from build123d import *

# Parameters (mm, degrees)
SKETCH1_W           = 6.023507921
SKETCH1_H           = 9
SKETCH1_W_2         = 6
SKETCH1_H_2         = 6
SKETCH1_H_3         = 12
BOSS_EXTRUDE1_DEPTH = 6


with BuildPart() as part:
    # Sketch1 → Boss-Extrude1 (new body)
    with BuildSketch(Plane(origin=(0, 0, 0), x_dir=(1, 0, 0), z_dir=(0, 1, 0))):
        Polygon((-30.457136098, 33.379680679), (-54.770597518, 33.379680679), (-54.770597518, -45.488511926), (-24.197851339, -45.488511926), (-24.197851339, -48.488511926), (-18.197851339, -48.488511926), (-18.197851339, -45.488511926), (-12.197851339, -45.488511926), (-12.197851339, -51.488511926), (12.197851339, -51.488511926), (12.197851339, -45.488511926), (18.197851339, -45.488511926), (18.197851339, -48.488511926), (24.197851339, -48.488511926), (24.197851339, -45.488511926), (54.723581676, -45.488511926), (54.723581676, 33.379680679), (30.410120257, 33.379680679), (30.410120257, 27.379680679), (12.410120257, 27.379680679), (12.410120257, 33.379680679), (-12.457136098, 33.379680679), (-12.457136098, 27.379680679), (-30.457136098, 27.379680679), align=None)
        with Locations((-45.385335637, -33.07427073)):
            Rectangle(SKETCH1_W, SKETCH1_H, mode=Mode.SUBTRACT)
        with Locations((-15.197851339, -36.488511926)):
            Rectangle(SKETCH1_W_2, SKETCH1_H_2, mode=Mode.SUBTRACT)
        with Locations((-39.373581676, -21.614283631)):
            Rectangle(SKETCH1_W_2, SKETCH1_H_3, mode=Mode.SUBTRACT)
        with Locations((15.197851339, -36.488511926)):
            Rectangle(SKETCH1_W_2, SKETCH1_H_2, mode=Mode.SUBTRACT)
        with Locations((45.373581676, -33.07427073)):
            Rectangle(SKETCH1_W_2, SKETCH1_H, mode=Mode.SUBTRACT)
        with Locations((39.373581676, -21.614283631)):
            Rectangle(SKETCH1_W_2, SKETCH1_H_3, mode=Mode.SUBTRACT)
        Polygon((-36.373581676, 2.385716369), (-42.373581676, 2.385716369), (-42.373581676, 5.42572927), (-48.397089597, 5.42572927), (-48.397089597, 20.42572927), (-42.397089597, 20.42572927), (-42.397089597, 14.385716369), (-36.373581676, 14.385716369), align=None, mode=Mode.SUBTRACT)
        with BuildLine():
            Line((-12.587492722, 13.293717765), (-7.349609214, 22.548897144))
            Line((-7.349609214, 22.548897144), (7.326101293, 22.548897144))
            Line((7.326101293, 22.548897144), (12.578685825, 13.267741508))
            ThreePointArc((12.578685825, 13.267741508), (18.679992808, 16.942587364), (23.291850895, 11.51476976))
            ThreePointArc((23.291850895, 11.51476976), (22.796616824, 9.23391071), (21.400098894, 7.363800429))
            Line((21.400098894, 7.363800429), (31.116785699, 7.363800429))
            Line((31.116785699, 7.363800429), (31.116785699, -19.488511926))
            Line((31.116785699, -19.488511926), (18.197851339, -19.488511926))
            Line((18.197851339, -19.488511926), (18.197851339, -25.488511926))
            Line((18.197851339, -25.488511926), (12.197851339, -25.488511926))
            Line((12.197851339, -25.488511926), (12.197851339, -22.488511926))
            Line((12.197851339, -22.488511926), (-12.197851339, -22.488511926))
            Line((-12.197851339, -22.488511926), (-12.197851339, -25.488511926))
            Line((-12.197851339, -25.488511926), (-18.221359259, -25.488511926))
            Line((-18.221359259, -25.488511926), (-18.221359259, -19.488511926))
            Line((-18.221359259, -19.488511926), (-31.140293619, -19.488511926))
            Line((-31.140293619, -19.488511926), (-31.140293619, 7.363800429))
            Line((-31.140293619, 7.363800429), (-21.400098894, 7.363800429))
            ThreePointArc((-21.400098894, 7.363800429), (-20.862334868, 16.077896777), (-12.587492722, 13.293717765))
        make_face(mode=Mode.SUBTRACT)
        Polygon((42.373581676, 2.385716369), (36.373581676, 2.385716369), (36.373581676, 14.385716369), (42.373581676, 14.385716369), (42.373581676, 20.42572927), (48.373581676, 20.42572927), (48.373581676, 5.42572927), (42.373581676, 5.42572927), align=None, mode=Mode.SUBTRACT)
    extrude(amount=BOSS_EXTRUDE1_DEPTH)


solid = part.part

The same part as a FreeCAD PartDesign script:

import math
import FreeCAD as App
import Part
import Sketcher
from FreeCAD import Vector
Q = App.Units.Quantity

doc = App.newDocument("Part")
body = doc.addObject("PartDesign::Body", "Body")

sketch1 = body.newObject("Sketcher::SketchObject", "Sketch")
sketch1.AttachmentSupport = (doc.getObject("XZ_Plane"), [""])
sketch1.MapMode = "FlatFace"
sketch1.addGeometry(Part.LineSegment(Vector(-30.5, -33.4, 0), Vector(-54.8, -33.4, 0)), False)
sketch1.addGeometry(Part.LineSegment(Vector(-54.8, -33.4, 0), Vector(-54.8, 45.5, 0)), False)
sketch1.addGeometry(Part.LineSegment(Vector(-54.8, 45.5, 0), Vector(-24.2, 45.5, 0)), False)
sketch1.addGeometry(Part.LineSegment(Vector(-24.2, 45.5, 0), Vector(-24.2, 48.5, 0)), False)
sketch1.addGeometry(Part.LineSegment(Vector(-24.2, 48.5, 0), Vector(-18.2, 48.5, 0)), False)
sketch1.addGeometry(Part.LineSegment(Vector(-18.2, 48.5, 0), Vector(-18.2, 45.5, 0)), False)
sketch1.addGeometry(Part.LineSegment(Vector(-18.2, 45.5, 0), Vector(-12.2, 45.5, 0)), False)
sketch1.addGeometry(Part.LineSegment(Vector(-12.2, 45.5, 0), Vector(-12.2, 51.5, 0)), False)
sketch1.addGeometry(Part.LineSegment(Vector(-12.2, 51.5, 0), Vector(12.2, 51.5, 0)), False)
sketch1.addGeometry(Part.LineSegment(Vector(12.2, 51.5, 0), Vector(12.2, 45.5, 0)), False)
sketch1.addGeometry(Part.LineSegment(Vector(12.2, 45.5, 0), Vector(18.2, 45.5, 0)), False)
sketch1.addGeometry(Part.LineSegment(Vector(18.2, 45.5, 0), Vector(18.2, 48.5, 0)), False)
sketch1.addGeometry(Part.LineSegment(Vector(18.2, 48.5, 0), Vector(24.2, 48.5, 0)), False)
sketch1.addGeometry(Part.LineSegment(Vector(24.2, 48.5, 0), Vector(24.2, 45.5, 0)), False)
sketch1.addGeometry(Part.LineSegment(Vector(24.2, 45.5, 0), Vector(54.7, 45.5, 0)), False)
sketch1.addGeometry(Part.LineSegment(Vector(54.7, 45.5, 0), Vector(54.7, -33.4, 0)), False)
sketch1.addGeometry(Part.LineSegment(Vector(54.7, -33.4, 0), Vector(30.4, -33.4, 0)), False)
sketch1.addGeometry(Part.LineSegment(Vector(30.4, -33.4, 0), Vector(30.4, -27.4, 0)), False)
sketch1.addGeometry(Part.LineSegment(Vector(30.4, -27.4, 0), Vector(12.4, -27.4, 0)), False)
sketch1.addGeometry(Part.LineSegment(Vector(12.4, -27.4, 0), Vector(12.4, -33.4, 0)), False)
sketch1.addGeometry(Part.LineSegment(Vector(12.4, -33.4, 0), Vector(-12.5, -33.4, 0)), False)
sketch1.addGeometry(Part.LineSegment(Vector(-12.5, -33.4, 0), Vector(-12.5, -27.4, 0)), False)
sketch1.addGeometry(Part.LineSegment(Vector(-12.5, -27.4, 0), Vector(-30.5, -27.4, 0)), False)
sketch1.addGeometry(Part.LineSegment(Vector(-30.5, -27.4, 0), Vector(-30.5, -33.4, 0)), False)
sketch1.addGeometry(Part.LineSegment(Vector(-42.4, 37.6, 0), Vector(-48.4, 37.6, 0)), False)
sketch1.addGeometry(Part.LineSegment(Vector(-48.4, 37.6, 0), Vector(-48.4, 28.6, 0)), False)
sketch1.addGeometry(Part.LineSegment(Vector(-48.4, 28.6, 0), Vector(-42.4, 28.6, 0)), False)
sketch1.addGeometry(Part.LineSegment(Vector(-42.4, 28.6, 0), Vector(-42.4, 37.6, 0)), False)
sketch1.addGeometry(Part.LineSegment(Vector(-12.2, 39.5, 0), Vector(-18.2, 39.5, 0)), False)
sketch1.addGeometry(Part.LineSegment(Vector(-18.2, 39.5, 0), Vector(-18.2, 33.5, 0)), False)
sketch1.addGeometry(Part.LineSegment(Vector(-18.2, 33.5, 0), Vector(-12.2, 33.5, 0)), False)
sketch1.addGeometry(Part.LineSegment(Vector(-12.2, 33.5, 0), Vector(-12.2, 39.5, 0)), False)
sketch1.addGeometry(Part.LineSegment(Vector(-36.4, 27.6, 0), Vector(-42.4, 27.6, 0)), False)
sketch1.addGeometry(Part.LineSegment(Vector(-42.4, 27.6, 0), Vector(-42.4, 15.6, 0)), False)
sketch1.addGeometry(Part.LineSegment(Vector(-42.4, 15.6, 0), Vector(-36.4, 15.6, 0)), False)
sketch1.addGeometry(Part.LineSegment(Vector(-36.4, 15.6, 0), Vector(-36.4, 27.6, 0)), False)
sketch1.addGeometry(Part.LineSegment(Vector(18.2, 39.5, 0), Vector(12.2, 39.5, 0)), False)
sketch1.addGeometry(Part.LineSegment(Vector(12.2, 39.5, 0), Vector(12.2, 33.5, 0)), False)
sketch1.addGeometry(Part.LineSegment(Vector(12.2, 33.5, 0), Vector(18.2, 33.5, 0)), False)
sketch1.addGeometry(Part.LineSegment(Vector(18.2, 33.5, 0), Vector(18.2, 39.5, 0)), False)
sketch1.addGeometry(Part.LineSegment(Vector(48.4, 37.6, 0), Vector(42.4, 37.6, 0)), False)
sketch1.addGeometry(Part.LineSegment(Vector(42.4, 37.6, 0), Vector(42.4, 28.6, 0)), False)
sketch1.addGeometry(Part.LineSegment(Vector(42.4, 28.6, 0), Vector(48.4, 28.6, 0)), False)
sketch1.addGeometry(Part.LineSegment(Vector(48.4, 28.6, 0), Vector(48.4, 37.6, 0)), False)
sketch1.addGeometry(Part.LineSegment(Vector(42.4, 27.6, 0), Vector(36.4, 27.6, 0)), False)
sketch1.addGeometry(Part.LineSegment(Vector(36.4, 27.6, 0), Vector(36.4, 15.6, 0)), False)
sketch1.addGeometry(Part.LineSegment(Vector(36.4, 15.6, 0), Vector(42.4, 15.6, 0)), False)
sketch1.addGeometry(Part.LineSegment(Vector(42.4, 15.6, 0), Vector(42.4, 27.6, 0)), False)
sketch1.addGeometry(Part.LineSegment(Vector(-36.4, -14.4, 0), Vector(-36.4, -2.4, 0)), False)
sketch1.addGeometry(Part.LineSegment(Vector(-36.4, -2.4, 0), Vector(-42.4, -2.4, 0)), False)
sketch1.addGeometry(Part.LineSegment(Vector(-42.4, -2.4, 0), Vector(-42.4, -5.4, 0)), False)
sketch1.addGeometry(Part.LineSegment(Vector(-42.4, -5.4, 0), Vector(-48.4, -5.4, 0)), False)
sketch1.addGeometry(Part.LineSegment(Vector(-48.4, -5.4, 0), Vector(-48.4, -20.4, 0)), False)
sketch1.addGeometry(Part.LineSegment(Vector(-48.4, -20.4, 0), Vector(-42.4, -20.4, 0)), False)
sketch1.addGeometry(Part.LineSegment(Vector(-42.4, -20.4, 0), Vector(-42.4, -14.4, 0)), False)
sketch1.addGeometry(Part.LineSegment(Vector(-42.4, -14.4, 0), Vector(-36.4, -14.4, 0)), False)
sketch1.addGeometry(Part.ArcOfCircle(Part.Circle(Vector(-17.8, -11.5, 0), Vector(0, 0, 1), 5.5), math.radians(131), math.radians(341)), False)
sketch1.addGeometry(Part.LineSegment(Vector(-12.6, -13.3, 0), Vector(-7.3, -22.5, 0)), False)
sketch1.addGeometry(Part.LineSegment(Vector(-7.3, -22.5, 0), Vector(7.3, -22.5, 0)), False)
sketch1.addGeometry(Part.LineSegment(Vector(7.3, -22.5, 0), Vector(12.6, -13.3, 0)), False)
sketch1.addGeometry(Part.ArcOfCircle(Part.Circle(Vector(17.8, -11.5, 0), Vector(0, 0, 1), 5.5), math.radians(-161), math.radians(0)), False)
sketch1.addGeometry(Part.ArcOfCircle(Part.Circle(Vector(17.8, -11.5, 0), Vector(0, 0, 1), 5.5), math.radians(0), math.radians(49)), False)
sketch1.addGeometry(Part.LineSegment(Vector(21.4, -7.4, 0), Vector(31.1, -7.4, 0)), False)
sketch1.addGeometry(Part.LineSegment(Vector(31.1, -7.4, 0), Vector(31.1, 19.5, 0)), False)
sketch1.addGeometry(Part.LineSegment(Vector(31.1, 19.5, 0), Vector(18.2, 19.5, 0)), False)
sketch1.addGeometry(Part.LineSegment(Vector(18.2, 19.5, 0), Vector(18.2, 25.5, 0)), False)
sketch1.addGeometry(Part.LineSegment(Vector(18.2, 25.5, 0), Vector(12.2, 25.5, 0)), False)
sketch1.addGeometry(Part.LineSegment(Vector(12.2, 25.5, 0), Vector(12.2, 22.5, 0)), False)
sketch1.addGeometry(Part.LineSegment(Vector(12.2, 22.5, 0), Vector(-12.2, 22.5, 0)), False)
sketch1.addGeometry(Part.LineSegment(Vector(-12.2, 22.5, 0), Vector(-12.2, 25.5, 0)), False)
sketch1.addGeometry(Part.LineSegment(Vector(-12.2, 25.5, 0), Vector(-18.2, 25.5, 0)), False)
sketch1.addGeometry(Part.LineSegment(Vector(-18.2, 25.5, 0), Vector(-18.2, 19.5, 0)), False)
sketch1.addGeometry(Part.LineSegment(Vector(-18.2, 19.5, 0), Vector(-31.1, 19.5, 0)), False)
sketch1.addGeometry(Part.LineSegment(Vector(-31.1, 19.5, 0), Vector(-31.1, -7.4, 0)), False)
sketch1.addGeometry(Part.LineSegment(Vector(-31.1, -7.4, 0), Vector(-21.4, -7.4, 0)), False)
sketch1.addGeometry(Part.LineSegment(Vector(42.4, -5.4, 0), Vector(42.4, -2.4, 0)), False)
sketch1.addGeometry(Part.LineSegment(Vector(42.4, -2.4, 0), Vector(36.4, -2.4, 0)), False)
sketch1.addGeometry(Part.LineSegment(Vector(36.4, -2.4, 0), Vector(36.4, -14.4, 0)), False)
sketch1.addGeometry(Part.LineSegment(Vector(36.4, -14.4, 0), Vector(42.4, -14.4, 0)), False)
sketch1.addGeometry(Part.LineSegment(Vector(42.4, -14.4, 0), Vector(42.4, -20.4, 0)), False)
sketch1.addGeometry(Part.LineSegment(Vector(42.4, -20.4, 0), Vector(48.4, -20.4, 0)), False)
sketch1.addGeometry(Part.LineSegment(Vector(48.4, -20.4, 0), Vector(48.4, -5.4, 0)), False)
sketch1.addGeometry(Part.LineSegment(Vector(48.4, -5.4, 0), Vector(42.4, -5.4, 0)), False)
sketch1.addConstraint(Sketcher.Constraint("Coincident", 0, 2, 1, 1))
sketch1.addConstraint(Sketcher.Constraint("Coincident", 1, 2, 2, 1))
sketch1.addConstraint(Sketcher.Constraint("Coincident", 2, 2, 3, 1))
sketch1.addConstraint(Sketcher.Constraint("Coincident", 3, 2, 4, 1))
sketch1.addConstraint(Sketcher.Constraint("Coincident", 4, 2, 5, 1))
sketch1.addConstraint(Sketcher.Constraint("Coincident", 5, 2, 6, 1))
sketch1.addConstraint(Sketcher.Constraint("Coincident", 6, 2, 7, 1))
sketch1.addConstraint(Sketcher.Constraint("Coincident", 7, 2, 8, 1))
sketch1.addConstraint(Sketcher.Constraint("Coincident", 8, 2, 9, 1))
sketch1.addConstraint(Sketcher.Constraint("Coincident", 9, 2, 10, 1))
sketch1.addConstraint(Sketcher.Constraint("Coincident", 10, 2, 11, 1))
sketch1.addConstraint(Sketcher.Constraint("Coincident", 11, 2, 12, 1))
sketch1.addConstraint(Sketcher.Constraint("Coincident", 12, 2, 13, 1))
sketch1.addConstraint(Sketcher.Constraint("Coincident", 13, 2, 14, 1))
sketch1.addConstraint(Sketcher.Constraint("Coincident", 14, 2, 15, 1))
sketch1.addConstraint(Sketcher.Constraint("Coincident", 15, 2, 16, 1))
sketch1.addConstraint(Sketcher.Constraint("Coincident", 16, 2, 17, 1))
sketch1.addConstraint(Sketcher.Constraint("Coincident", 17, 2, 18, 1))
sketch1.addConstraint(Sketcher.Constraint("Coincident", 18, 2, 19, 1))
sketch1.addConstraint(Sketcher.Constraint("Coincident", 19, 2, 20, 1))
sketch1.addConstraint(Sketcher.Constraint("Coincident", 20, 2, 21, 1))
sketch1.addConstraint(Sketcher.Constraint("Coincident", 21, 2, 22, 1))
sketch1.addConstraint(Sketcher.Constraint("Coincident", 22, 2, 23, 1))
sketch1.addConstraint(Sketcher.Constraint("Coincident", 23, 2, 0, 1))
sketch1.addConstraint(Sketcher.Constraint("Coincident", 24, 2, 25, 1))
sketch1.addConstraint(Sketcher.Constraint("Coincident", 25, 2, 26, 1))
sketch1.addConstraint(Sketcher.Constraint("Coincident", 26, 2, 27, 1))
sketch1.addConstraint(Sketcher.Constraint("Coincident", 27, 2, 24, 1))
sketch1.addConstraint(Sketcher.Constraint("Coincident", 28, 2, 29, 1))
sketch1.addConstraint(Sketcher.Constraint("Coincident", 29, 2, 30, 1))
sketch1.addConstraint(Sketcher.Constraint("Coincident", 30, 2, 31, 1))
sketch1.addConstraint(Sketcher.Constraint("Coincident", 31, 2, 28, 1))
sketch1.addConstraint(Sketcher.Constraint("Coincident", 32, 2, 33, 1))
sketch1.addConstraint(Sketcher.Constraint("Coincident", 33, 2, 34, 1))
sketch1.addConstraint(Sketcher.Constraint("Coincident", 34, 2, 35, 1))
sketch1.addConstraint(Sketcher.Constraint("Coincident", 35, 2, 32, 1))
sketch1.addConstraint(Sketcher.Constraint("Coincident", 36, 2, 37, 1))
sketch1.addConstraint(Sketcher.Constraint("Coincident", 37, 2, 38, 1))
sketch1.addConstraint(Sketcher.Constraint("Coincident", 38, 2, 39, 1))
sketch1.addConstraint(Sketcher.Constraint("Coincident", 39, 2, 36, 1))
sketch1.addConstraint(Sketcher.Constraint("Coincident", 40, 2, 41, 1))
sketch1.addConstraint(Sketcher.Constraint("Coincident", 41, 2, 42, 1))
sketch1.addConstraint(Sketcher.Constraint("Coincident", 42, 2, 43, 1))
sketch1.addConstraint(Sketcher.Constraint("Coincident", 43, 2, 40, 1))
sketch1.addConstraint(Sketcher.Constraint("Coincident", 44, 2, 45, 1))
sketch1.addConstraint(Sketcher.Constraint("Coincident", 45, 2, 46, 1))
sketch1.addConstraint(Sketcher.Constraint("Coincident", 46, 2, 47, 1))
sketch1.addConstraint(Sketcher.Constraint("Coincident", 47, 2, 44, 1))
sketch1.addConstraint(Sketcher.Constraint("Coincident", 48, 2, 49, 1))
sketch1.addConstraint(Sketcher.Constraint("Coincident", 49, 2, 50, 1))
sketch1.addConstraint(Sketcher.Constraint("Coincident", 50, 2, 51, 1))
sketch1.addConstraint(Sketcher.Constraint("Coincident", 51, 2, 52, 1))
sketch1.addConstraint(Sketcher.Constraint("Coincident", 52, 2, 53, 1))
sketch1.addConstraint(Sketcher.Constraint("Coincident", 53, 2, 54, 1))
sketch1.addConstraint(Sketcher.Constraint("Coincident", 54, 2, 55, 1))
sketch1.addConstraint(Sketcher.Constraint("Coincident", 55, 2, 48, 1))
sketch1.addConstraint(Sketcher.Constraint("Coincident", 56, 2, 57, 1))
sketch1.addConstraint(Sketcher.Constraint("Coincident", 57, 2, 58, 1))
sketch1.addConstraint(Sketcher.Constraint("Coincident", 58, 2, 59, 1))
sketch1.addConstraint(Sketcher.Constraint("Coincident", 59, 2, 60, 1))
sketch1.addConstraint(Sketcher.Constraint("Tangent", 60, 2, 61, 1))
sketch1.addConstraint(Sketcher.Constraint("Coincident", 61, 2, 62, 1))
sketch1.addConstraint(Sketcher.Constraint("Coincident", 62, 2, 63, 1))
sketch1.addConstraint(Sketcher.Constraint("Coincident", 63, 2, 64, 1))
sketch1.addConstraint(Sketcher.Constraint("Coincident", 64, 2, 65, 1))
sketch1.addConstraint(Sketcher.Constraint("Coincident", 65, 2, 66, 1))
sketch1.addConstraint(Sketcher.Constraint("Coincident", 66, 2, 67, 1))
sketch1.addConstraint(Sketcher.Constraint("Coincident", 67, 2, 68, 1))
sketch1.addConstraint(Sketcher.Constraint("Coincident", 68, 2, 69, 1))
sketch1.addConstraint(Sketcher.Constraint("Coincident", 69, 2, 70, 1))
sketch1.addConstraint(Sketcher.Constraint("Coincident", 70, 2, 71, 1))
sketch1.addConstraint(Sketcher.Constraint("Coincident", 71, 2, 72, 1))
sketch1.addConstraint(Sketcher.Constraint("Coincident", 72, 2, 73, 1))
sketch1.addConstraint(Sketcher.Constraint("Coincident", 73, 2, 74, 1))
sketch1.addConstraint(Sketcher.Constraint("Coincident", 74, 2, 56, 1))
sketch1.addConstraint(Sketcher.Constraint("Coincident", 75, 2, 76, 1))
sketch1.addConstraint(Sketcher.Constraint("Coincident", 76, 2, 77, 1))
sketch1.addConstraint(Sketcher.Constraint("Coincident", 77, 2, 78, 1))
sketch1.addConstraint(Sketcher.Constraint("Coincident", 78, 2, 79, 1))
sketch1.addConstraint(Sketcher.Constraint("Coincident", 79, 2, 80, 1))
sketch1.addConstraint(Sketcher.Constraint("Coincident", 80, 2, 81, 1))
sketch1.addConstraint(Sketcher.Constraint("Coincident", 81, 2, 82, 1))
sketch1.addConstraint(Sketcher.Constraint("Coincident", 82, 2, 75, 1))
sketch1.addConstraint(Sketcher.Constraint("Horizontal", 0))
sketch1.addConstraint(Sketcher.Constraint("Vertical", 1))
sketch1.addConstraint(Sketcher.Constraint("Horizontal", 2))
sketch1.addConstraint(Sketcher.Constraint("Vertical", 3))
sketch1.addConstraint(Sketcher.Constraint("Horizontal", 4))
sketch1.addConstraint(Sketcher.Constraint("Vertical", 5))
sketch1.addConstraint(Sketcher.Constraint("Horizontal", 6))
sketch1.addConstraint(Sketcher.Constraint("Vertical", 7))
sketch1.addConstraint(Sketcher.Constraint("Horizontal", 8))
sketch1.addConstraint(Sketcher.Constraint("Vertical", 9))
sketch1.addConstraint(Sketcher.Constraint("Horizontal", 10))
sketch1.addConstraint(Sketcher.Constraint("Vertical", 11))
sketch1.addConstraint(Sketcher.Constraint("Horizontal", 12))
sketch1.addConstraint(Sketcher.Constraint("Vertical", 13))
sketch1.addConstraint(Sketcher.Constraint("Horizontal", 14))
sketch1.addConstraint(Sketcher.Constraint("Vertical", 15))
sketch1.addConstraint(Sketcher.Constraint("Horizontal", 16))
sketch1.addConstraint(Sketcher.Constraint("Vertical", 17))
sketch1.addConstraint(Sketcher.Constraint("Horizontal", 18))
sketch1.addConstraint(Sketcher.Constraint("Vertical", 19))
sketch1.addConstraint(Sketcher.Constraint("Horizontal", 20))
sketch1.addConstraint(Sketcher.Constraint("Vertical", 21))
sketch1.addConstraint(Sketcher.Constraint("Horizontal", 22))
sketch1.addConstraint(Sketcher.Constraint("Vertical", 23))
sketch1.addConstraint(Sketcher.Constraint("Horizontal", 24))
sketch1.addConstraint(Sketcher.Constraint("Vertical", 25))
sketch1.addConstraint(Sketcher.Constraint("Horizontal", 26))
sketch1.addConstraint(Sketcher.Constraint("Vertical", 27))
sketch1.addConstraint(Sketcher.Constraint("Horizontal", 28))
sketch1.addConstraint(Sketcher.Constraint("Vertical", 29))
sketch1.addConstraint(Sketcher.Constraint("Horizontal", 30))
sketch1.addConstraint(Sketcher.Constraint("Vertical", 31))
sketch1.addConstraint(Sketcher.Constraint("Horizontal", 32))
sketch1.addConstraint(Sketcher.Constraint("Vertical", 33))
sketch1.addConstraint(Sketcher.Constraint("Horizontal", 34))
sketch1.addConstraint(Sketcher.Constraint("Vertical", 35))
sketch1.addConstraint(Sketcher.Constraint("Horizontal", 36))
sketch1.addConstraint(Sketcher.Constraint("Vertical", 37))
sketch1.addConstraint(Sketcher.Constraint("Horizontal", 38))
sketch1.addConstraint(Sketcher.Constraint("Vertical", 39))
sketch1.addConstraint(Sketcher.Constraint("Horizontal", 40))
sketch1.addConstraint(Sketcher.Constraint("Vertical", 41))
sketch1.addConstraint(Sketcher.Constraint("Horizontal", 42))
sketch1.addConstraint(Sketcher.Constraint("Vertical", 43))
sketch1.addConstraint(Sketcher.Constraint("Horizontal", 44))
sketch1.addConstraint(Sketcher.Constraint("Vertical", 45))
sketch1.addConstraint(Sketcher.Constraint("Horizontal", 46))
sketch1.addConstraint(Sketcher.Constraint("Vertical", 47))
sketch1.addConstraint(Sketcher.Constraint("Vertical", 48))
sketch1.addConstraint(Sketcher.Constraint("Horizontal", 49))
sketch1.addConstraint(Sketcher.Constraint("Vertical", 50))
sketch1.addConstraint(Sketcher.Constraint("Horizontal", 51))
sketch1.addConstraint(Sketcher.Constraint("Vertical", 52))
sketch1.addConstraint(Sketcher.Constraint("Horizontal", 53))
sketch1.addConstraint(Sketcher.Constraint("Vertical", 54))
sketch1.addConstraint(Sketcher.Constraint("Horizontal", 55))
sketch1.addConstraint(Sketcher.Constraint("Horizontal", 58))
sketch1.addConstraint(Sketcher.Constraint("Horizontal", 62))
sketch1.addConstraint(Sketcher.Constraint("Vertical", 63))
sketch1.addConstraint(Sketcher.Constraint("Horizontal", 64))
sketch1.addConstraint(Sketcher.Constraint("Vertical", 65))
sketch1.addConstraint(Sketcher.Constraint("Horizontal", 66))
sketch1.addConstraint(Sketcher.Constraint("Vertical", 67))
sketch1.addConstraint(Sketcher.Constraint("Horizontal", 68))
sketch1.addConstraint(Sketcher.Constraint("Vertical", 69))
sketch1.addConstraint(Sketcher.Constraint("Horizontal", 70))
sketch1.addConstraint(Sketcher.Constraint("Vertical", 71))
sketch1.addConstraint(Sketcher.Constraint("Horizontal", 72))
sketch1.addConstraint(Sketcher.Constraint("Vertical", 73))
sketch1.addConstraint(Sketcher.Constraint("Horizontal", 74))
sketch1.addConstraint(Sketcher.Constraint("Vertical", 75))
sketch1.addConstraint(Sketcher.Constraint("Horizontal", 76))
sketch1.addConstraint(Sketcher.Constraint("Vertical", 77))
sketch1.addConstraint(Sketcher.Constraint("Horizontal", 78))
sketch1.addConstraint(Sketcher.Constraint("Vertical", 79))
sketch1.addConstraint(Sketcher.Constraint("Horizontal", 80))
sketch1.addConstraint(Sketcher.Constraint("Vertical", 81))
sketch1.addConstraint(Sketcher.Constraint("Horizontal", 82))
sketch1.addConstraint(Sketcher.Constraint("Equal", 56, 60))
sketch1.addConstraint(Sketcher.Constraint("Equal", 60, 61))
sketch1.addConstraint(Sketcher.Constraint("Symmetric", 56, 3, 60, 3, -2))
sketch1.addConstraint(Sketcher.Constraint("Symmetric", 6, 2, 9, 2, -2))
sketch1.addConstraint(Sketcher.Constraint("Symmetric", 4, 2, 11, 2, -2))
sketch1.addConstraint(Sketcher.Constraint("Symmetric", 2, 2, 13, 2, -2))
sketch1.addConstraint(Sketcher.Constraint("Symmetric", 31, 2, 36, 2, -2))
sketch1.addConstraint(Sketcher.Constraint("Symmetric", 29, 2, 38, 2, -2))
sketch1.addConstraint(Sketcher.Constraint("Symmetric", 27, 2, 40, 2, -2))
sketch1.addConstraint(Sketcher.Constraint("Symmetric", 35, 2, 44, 2, -2))
sketch1.addConstraint(Sketcher.Constraint("Symmetric", 33, 2, 46, 2, -2))
sketch1.addConstraint(Sketcher.Constraint("Symmetric", 66, 2, 69, 2, -2))
sketch1.addConstraint(Sketcher.Constraint("Symmetric", 49, 2, 75, 2, -2))
sketch1.addConstraint(Sketcher.Constraint("Symmetric", 55, 2, 77, 2, -2))
sketch1.addConstraint(Sketcher.Constraint("Horizontal", 2, 2, 5, 2))
sketch1.addConstraint(Sketcher.Constraint("Horizontal", 0, 2, 15, 2))
sketch1.addConstraint(Sketcher.Constraint("Horizontal", 16, 2, 19, 2))
sketch1.addConstraint(Sketcher.Constraint("Horizontal", 18, 2, 21, 2))
sketch1.addConstraint(Sketcher.Constraint("Horizontal", 26, 2, 41, 2))
sketch1.addConstraint(Sketcher.Constraint("Horizontal", 61, 3, 60, 2))
sketch1.addConstraint(Sketcher.Constraint("Horizontal", 64, 2, 71, 2))
sketch1.addConstraint(Sketcher.Constraint("Horizontal", 62, 2, 73, 2))
sketch1.addConstraint(Sketcher.Constraint("Horizontal", 53, 2, 79, 2))
sketch1.addConstraint(Sketcher.Constraint("Horizontal", 51, 2, 81, 2))
sketch1.addConstraint(Sketcher.Constraint("Vertical", 5, 2, 28, 2))
sketch1.addConstraint(Sketcher.Constraint("Vertical", 7, 2, 30, 2))
sketch1.addConstraint(Sketcher.Constraint("Vertical", 27, 2, 32, 2))
sketch1.addConstraint(Sketcher.Constraint("Vertical", 35, 2, 48, 2))
sketch1.addConstraint(Sketcher.Constraint("Vertical", 33, 2, 49, 2))
sketch1.addConstraint(Sketcher.Constraint("Vertical", 25, 2, 51, 2))
sketch1.addConstraint(Sketcher.Constraint("Vertical", 39, 2, 64, 2))
sketch1.addConstraint(Sketcher.Constraint("Vertical", 37, 2, 66, 2))
sketch1.addConstraint(Sketcher.Constraint("Vertical", 75, 2, 78, 2))
sketch1.addConstraint(Sketcher.Constraint("Vertical", 43, 2, 80, 2))
sketch1.addConstraint(Sketcher.Constraint("Equal", 4, 6))
sketch1.addConstraint(Sketcher.Constraint("Equal", 0, 16))
sketch1.addConstraint(Sketcher.Constraint("Equal", 18, 22))
sketch1.addConstraint(Sketcher.Constraint("Equal", 30, 32))
sketch1.addConstraint(Sketcher.Constraint("Equal", 38, 40))
sketch1.addConstraint(Sketcher.Constraint("Equal", 49, 53))
sketch1.addConstraint(Sketcher.Constraint("Equal", 55, 70))
sketch1.addConstraint(Sketcher.Constraint("Equal", 64, 72))
sketch1.addConstraint(Sketcher.Constraint("Equal", 82, 7))
sketch1.addConstraint(Sketcher.Constraint("Equal", 9, 17))
sketch1.addConstraint(Sketcher.Constraint("Equal", 23, 29))
sketch1.addConstraint(Sketcher.Constraint("Equal", 47, 48))
sketch1.addConstraint(Sketcher.Constraint("Equal", 39, 65))
sketch1.addConstraint(Sketcher.Constraint("Equal", 13, 67))
sketch1.addConstraint(Sketcher.Constraint("Radius", 56, Q("5.5 mm")))
sketch1.addConstraint(Sketcher.Constraint("DistanceX", 4, 1, 4, 2, Q("6 mm")))
sketch1.addConstraint(Sketcher.Constraint("DistanceX", 18, 2, 18, 1, Q("18 mm")))
sketch1.addConstraint(Sketcher.Constraint("DistanceY", 3, 1, 3, 2, Q("3 mm")))
sketch1.addConstraint(Sketcher.Constraint("DistanceY", 25, 2, 25, 1, Q("9 mm")))
sketch1.addConstraint(Sketcher.Constraint("DistanceY", 33, 2, 33, 1, Q("12 mm")))
sketch1.addConstraint(Sketcher.Constraint("DistanceY", 52, 2, 52, 1, Q("15 mm")))
sketch1.addConstraint(Sketcher.Constraint("DistanceX", 0, 2, 0, 1, Q("24.313461 mm")))
sketch1.addConstraint(Sketcher.Constraint("DistanceX", 14, 1, 14, 2, Q("30.52573 mm")))
sketch1.addConstraint(Sketcher.Constraint("DistanceX", 58, 1, 58, 2, Q("14.675711 mm")))
sketch1.addConstraint(Sketcher.Constraint("DistanceX", -1, 1, 58, 2, Q("7.326101 mm")))
sketch1.addConstraint(Sketcher.Constraint("DistanceX", -1, 1, 61, 2, Q("21.400099 mm")))
sketch1.addConstraint(Sketcher.Constraint("DistanceY", 61, 2, -1, 1, Q("7.3638 mm")))
sketch1.addConstraint(Sketcher.Constraint("DistanceX", 2, 1, 2, 2, Q("30.572746 mm")))
sketch1.addConstraint(Sketcher.Constraint("DistanceX", 8, 1, 8, 2, Q("24.395703 mm")))
sketch1.addConstraint(Sketcher.Constraint("DistanceX", 24, 2, 24, 1, Q("6.023508 mm")))
sketch1.addConstraint(Sketcher.Constraint("DistanceX", 62, 1, 62, 2, Q("9.716687 mm")))
sketch1.addConstraint(Sketcher.Constraint("DistanceY", 1, 1, 1, 2, Q("78.868193 mm")))
sketch1.addConstraint(Sketcher.Constraint("DistanceY", 50, 2, 50, 1, Q("3.040013 mm")))
sketch1.addConstraint(Sketcher.Constraint("DistanceY", 63, 1, 63, 2, Q("26.852312 mm")))
sketch1.addConstraint(Sketcher.Constraint("DistanceX", 56, 3, -1, 1, Q("17.791851 mm")))
sketch1.addConstraint(Sketcher.Constraint("DistanceY", 0, 2, -1, 1, Q("33.379681 mm")))
sketch1.addConstraint(Sketcher.Constraint("DistanceX", 24, 2, -1, 1, Q("48.39709 mm")))
sketch1.addConstraint(Sketcher.Constraint("DistanceY", -1, 1, 24, 2, Q("37.574271 mm")))
sketch1.addConstraint(Sketcher.Constraint("DistanceY", -1, 1, 28, 2, Q("39.488512 mm")))
sketch1.addConstraint(Sketcher.Constraint("DistanceY", 50, 2, -1, 1, Q("5.425729 mm")))
sketch1.addConstraint(Sketcher.Constraint("DistanceY", 59, 2, -1, 1, Q("13.267742 mm")))
sketch1.addConstraint(Sketcher.Constraint("Distance", 57, Q("10.634555 mm")))
sketch1.addConstraint(Sketcher.Constraint("Distance", 59, Q("10.664403 mm")))
sketch1.addConstraint(Sketcher.Constraint("DistanceY", -1, 1, 32, 2, Q("27.614284 mm")))
pad1 = body.newObject("PartDesign::Pad", "Pad")
pad1.Profile = sketch1
pad1.Length = 6
pad1.Reversed = True

doc.recompute()
